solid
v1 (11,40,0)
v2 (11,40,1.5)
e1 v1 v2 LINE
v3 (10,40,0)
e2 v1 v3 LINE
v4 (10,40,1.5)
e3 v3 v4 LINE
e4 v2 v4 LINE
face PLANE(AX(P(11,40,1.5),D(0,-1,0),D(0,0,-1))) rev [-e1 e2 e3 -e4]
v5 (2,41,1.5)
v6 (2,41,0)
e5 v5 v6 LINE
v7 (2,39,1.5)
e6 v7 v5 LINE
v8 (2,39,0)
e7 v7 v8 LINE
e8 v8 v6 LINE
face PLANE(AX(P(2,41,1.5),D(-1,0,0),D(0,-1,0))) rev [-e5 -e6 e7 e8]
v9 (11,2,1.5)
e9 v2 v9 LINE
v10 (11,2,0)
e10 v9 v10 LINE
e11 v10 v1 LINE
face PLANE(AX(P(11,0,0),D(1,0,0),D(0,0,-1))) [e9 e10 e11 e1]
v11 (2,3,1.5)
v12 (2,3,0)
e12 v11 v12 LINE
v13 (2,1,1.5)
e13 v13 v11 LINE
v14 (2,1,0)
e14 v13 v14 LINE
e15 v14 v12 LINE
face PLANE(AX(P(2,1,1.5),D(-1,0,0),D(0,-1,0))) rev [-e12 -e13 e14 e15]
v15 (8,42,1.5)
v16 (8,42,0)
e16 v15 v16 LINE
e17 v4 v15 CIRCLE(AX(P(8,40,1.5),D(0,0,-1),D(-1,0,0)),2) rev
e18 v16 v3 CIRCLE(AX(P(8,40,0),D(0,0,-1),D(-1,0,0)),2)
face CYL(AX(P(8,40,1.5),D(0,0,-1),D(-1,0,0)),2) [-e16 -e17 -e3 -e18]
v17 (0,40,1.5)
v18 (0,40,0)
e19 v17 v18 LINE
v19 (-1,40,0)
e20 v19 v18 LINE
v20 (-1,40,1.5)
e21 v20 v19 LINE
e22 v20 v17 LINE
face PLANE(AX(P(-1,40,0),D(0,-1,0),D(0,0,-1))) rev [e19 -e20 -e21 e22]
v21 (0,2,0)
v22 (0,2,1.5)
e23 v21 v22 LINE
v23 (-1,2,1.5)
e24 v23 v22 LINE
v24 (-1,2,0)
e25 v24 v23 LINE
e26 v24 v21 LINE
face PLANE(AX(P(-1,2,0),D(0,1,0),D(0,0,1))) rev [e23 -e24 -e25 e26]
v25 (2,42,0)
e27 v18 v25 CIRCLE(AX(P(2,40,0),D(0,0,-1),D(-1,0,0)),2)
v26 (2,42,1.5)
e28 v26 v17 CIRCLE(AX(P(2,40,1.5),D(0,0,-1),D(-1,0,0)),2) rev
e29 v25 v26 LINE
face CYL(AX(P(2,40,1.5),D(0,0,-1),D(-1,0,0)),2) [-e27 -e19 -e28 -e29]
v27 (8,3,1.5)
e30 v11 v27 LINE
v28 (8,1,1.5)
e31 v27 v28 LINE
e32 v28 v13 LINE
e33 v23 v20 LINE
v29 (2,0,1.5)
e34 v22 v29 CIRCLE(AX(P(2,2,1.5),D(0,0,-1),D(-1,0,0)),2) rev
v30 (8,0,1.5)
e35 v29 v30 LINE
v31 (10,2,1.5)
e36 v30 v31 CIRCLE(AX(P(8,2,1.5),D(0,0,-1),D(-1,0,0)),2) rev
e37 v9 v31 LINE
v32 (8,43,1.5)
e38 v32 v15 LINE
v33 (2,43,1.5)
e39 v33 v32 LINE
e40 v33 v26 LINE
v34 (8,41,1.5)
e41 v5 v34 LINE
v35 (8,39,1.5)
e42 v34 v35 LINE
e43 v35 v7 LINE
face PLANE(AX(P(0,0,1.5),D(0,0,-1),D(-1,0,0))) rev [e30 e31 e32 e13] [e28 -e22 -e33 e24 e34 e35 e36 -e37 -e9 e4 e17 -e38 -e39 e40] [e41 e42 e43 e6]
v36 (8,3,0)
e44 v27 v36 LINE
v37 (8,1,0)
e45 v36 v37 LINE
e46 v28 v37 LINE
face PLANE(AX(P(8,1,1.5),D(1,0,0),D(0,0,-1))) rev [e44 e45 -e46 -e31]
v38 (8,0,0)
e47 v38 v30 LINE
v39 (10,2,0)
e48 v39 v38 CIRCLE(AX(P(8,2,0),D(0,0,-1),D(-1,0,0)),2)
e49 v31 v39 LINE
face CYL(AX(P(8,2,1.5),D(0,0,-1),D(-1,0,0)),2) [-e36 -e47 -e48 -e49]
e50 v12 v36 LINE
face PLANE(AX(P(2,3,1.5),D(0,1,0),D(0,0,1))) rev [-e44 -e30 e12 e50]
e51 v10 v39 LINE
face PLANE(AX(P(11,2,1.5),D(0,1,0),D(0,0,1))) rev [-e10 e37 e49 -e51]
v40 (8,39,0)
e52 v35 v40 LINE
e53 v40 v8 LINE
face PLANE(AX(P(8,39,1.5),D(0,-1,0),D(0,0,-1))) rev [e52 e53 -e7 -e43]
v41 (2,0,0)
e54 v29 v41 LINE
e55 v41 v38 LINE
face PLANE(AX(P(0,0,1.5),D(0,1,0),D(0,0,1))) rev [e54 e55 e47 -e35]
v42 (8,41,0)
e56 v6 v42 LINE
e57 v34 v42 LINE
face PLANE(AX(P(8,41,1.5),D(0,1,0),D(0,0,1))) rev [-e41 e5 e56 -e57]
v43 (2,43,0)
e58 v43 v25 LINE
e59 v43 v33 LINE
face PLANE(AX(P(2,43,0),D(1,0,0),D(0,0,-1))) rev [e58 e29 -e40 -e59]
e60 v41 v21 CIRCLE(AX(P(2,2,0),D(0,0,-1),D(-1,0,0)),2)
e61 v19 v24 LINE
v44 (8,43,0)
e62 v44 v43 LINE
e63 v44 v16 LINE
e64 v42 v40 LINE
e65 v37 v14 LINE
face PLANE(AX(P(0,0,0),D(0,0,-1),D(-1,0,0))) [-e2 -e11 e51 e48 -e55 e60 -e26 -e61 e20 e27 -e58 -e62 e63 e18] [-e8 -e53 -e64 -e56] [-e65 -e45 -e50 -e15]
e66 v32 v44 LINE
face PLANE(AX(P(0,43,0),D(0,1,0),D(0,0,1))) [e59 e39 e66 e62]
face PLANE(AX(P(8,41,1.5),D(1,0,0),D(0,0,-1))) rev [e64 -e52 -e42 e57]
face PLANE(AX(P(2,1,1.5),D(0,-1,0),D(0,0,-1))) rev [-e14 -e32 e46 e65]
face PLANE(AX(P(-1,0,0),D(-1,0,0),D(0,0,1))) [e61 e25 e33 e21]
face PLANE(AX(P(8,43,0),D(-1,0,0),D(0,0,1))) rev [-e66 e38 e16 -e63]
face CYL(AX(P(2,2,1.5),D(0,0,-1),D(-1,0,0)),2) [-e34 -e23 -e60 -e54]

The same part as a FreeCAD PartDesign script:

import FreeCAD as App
import Part
import Sketcher

V = App.Vector


def edges_at(feature, points):
    """Names of the edges that pass closest to the given points."""
    edges = feature.Shape.Edges
    near = lambda p: min(range(len(edges)), key=lambda i: edges[i].distToShape(Part.Vertex(*p))[0])
    return sorted({f"Edge{near(p) + 1}" for p in points})


def add_polygon(sketch, points):
    """Adds a closed chain of lines whose ends are joined by coincident constraints."""
    first, n = sketch.GeometryCount, len(points)
    for a, b in zip(points, points[1:] + points[:1]):
        sketch.addGeometry(Part.LineSegment(App.Vector(*a, 0), App.Vector(*b, 0)), False)
    for i in range(n):
        sketch.addConstraint(Sketcher.Constraint("Coincident", first + i, 2, first + (i + 1) % n, 1))

doc = App.newDocument("Part")
body = doc.addObject("PartDesign::Body", "Body")

# Sketch on XY plane
sketch1 = body.newObject("Sketcher::SketchObject", "Sketch")
sketch1.AttachmentSupport = (doc.getObject("XY_Plane"), [""])
sketch1.MapMode = "FlatFace"
add_polygon(sketch1, [(0, 42), (0, 0), (10, 0), (10, 42)])  # lines 0-3
sketch1.addConstraint(Sketcher.Constraint("Vertical", 0))
sketch1.addConstraint(Sketcher.Constraint("Horizontal", 1))
sketch1.addConstraint(Sketcher.Constraint("Vertical", 2))
sketch1.addConstraint(Sketcher.Constraint("Horizontal", 3))
sketch1.addConstraint(Sketcher.Constraint("Coincident", 0, 2, -1, 1))
sketch1.addConstraint(Sketcher.Constraint("DistanceX", 1, 1, 1, 2, 10.0))
sketch1.addConstraint(Sketcher.Constraint("DistanceY", 0, 2, 0, 1, 42.0))
pad1 = body.newObject("PartDesign::Pad", "Pad")
pad1.Profile = sketch1
pad1.Length = 1.5
doc.recompute()

fillet = body.newObject("PartDesign::Fillet", "Fillet")
fillet.Base = (pad1, edges_at(pad1, [
    (0, 42, 0.75),
    (10, 42, 0.75),
    (10, 0, 0.75),
    (0, 0, 0.75),
]))
fillet.Radius = 2

# Sketch on YZ plane
sketch2 = body.newObject("Sketcher::SketchObject", "Sketch001")
sketch2.AttachmentSupport = (doc.getObject("YZ_Plane"), [""])
sketch2.MapMode = "FlatFace"
sketch2.AttachmentOffset = App.Placement(V(0, 0, 10), App.Rotation())
add_polygon(sketch2, [(40, 1.5), (2, 1.5), (2, 0), (40, 0)])  # lines 0-3
sketch2.addConstraint(Sketcher.Constraint("Horizontal", 0))
sketch2.addConstraint(Sketcher.Constraint("Vertical", 1))
sketch2.addConstraint(Sketcher.Constraint("Horizontal", 2))
sketch2.addConstraint(Sketcher.Constraint("Vertical", 3))
sketch2.addConstraint(Sketcher.Constraint("PointOnObject", 1, 2, -1))
sketch2.addConstraint(Sketcher.Constraint("DistanceX", 0, 2, 0, 1, 38.0))
sketch2.addConstraint(Sketcher.Constraint("DistanceY", 1, 2, 1, 1, 1.5))
sketch2.addConstraint(Sketcher.Constraint("DistanceX", -1, 1, 0, 2, 2.0))
pad2 = body.newObject("PartDesign::Pad", "Pad001")
pad2.Profile = sketch2
pad2.Length = 1

# Sketch on YZ plane
sketch3 = body.newObject("Sketcher::SketchObject", "Sketch002")
sketch3.AttachmentSupport = (doc.getObject("YZ_Plane"), [""])
sketch3.MapMode = "FlatFace"
add_polygon(sketch3, [(40, 0), (2, 0), (2, 1.5), (40, 1.5)])  # lines 0-3
sketch3.addConstraint(Sketcher.Constraint("Horizontal", 0))
sketch3.addConstraint(Sketcher.Constraint("Vertical", 1))
sketch3.addConstraint(Sketcher.Constraint("Horizontal", 2))
sketch3.addConstraint(Sketcher.Constraint("Vertical", 3))
sketch3.addConstraint(Sketcher.Constraint("PointOnObject", 0, 2, -1))
sketch3.addConstraint(Sketcher.Constraint("DistanceX", 0, 2, 0, 1, 38.0))
sketch3.addConstraint(Sketcher.Constraint("DistanceY", 1, 1, 1, 2, 1.5))
sketch3.addConstraint(Sketcher.Constraint("DistanceX", -1, 1, 0, 2, 2.0))
pad3 = body.newObject("PartDesign::Pad", "Pad002")
pad3.Profile = sketch3
pad3.Length = 1
pad3.Reversed = True

# Sketch on XZ plane
sketch4 = body.newObject("Sketcher::SketchObject", "Sketch003")
sketch4.AttachmentSupport = (doc.getObject("XZ_Plane"), [""])
sketch4.MapMode = "FlatFace"
sketch4.AttachmentOffset = App.Placement(V(0, 0, -42), App.Rotation())
add_polygon(sketch4, [(2, 0), (2, 1.5), (8, 1.5), (8, 0)])  # lines 0-3
sketch4.addConstraint(Sketcher.Constraint("Vertical", 0))
sketch4.addConstraint(Sketcher.Constraint("Horizontal", 1))
sketch4.addConstraint(Sketcher.Constraint("Vertical", 2))
sketch4.addConstraint(Sketcher.Constraint("Horizontal", 3))
sketch4.addConstraint(Sketcher.Constraint("PointOnObject", 2, 2, -1))
sketch4.addConstraint(Sketcher.Constraint("DistanceX", 1, 1, 1, 2, 6.0))
sketch4.addConstraint(Sketcher.Constraint("DistanceY", 0, 1, 0, 2, 1.5))
sketch4.addConstraint(Sketcher.Constraint("DistanceX", -1, 1, 0, 2, 2.0))
pad4 = body.newObject("PartDesign::Pad", "Pad003")
pad4.Profile = sketch4
pad4.Length = 1
pad4.Reversed = True

# Sketch on XY plane
sketch5 = body.newObject("Sketcher::SketchObject", "Sketch004")
sketch5.AttachmentSupport = (doc.getObject("XY_Plane"), [""])
sketch5.MapMode = "FlatFace"
add_polygon(sketch5, [(8, 41), (8, 39), (2, 39), (2, 41)])  # lines 0-3
add_polygon(sketch5, [(8, 3), (8, 1), (2, 1), (2, 3)])  # lines 4-7
sketch5.addConstraint(Sketcher.Constraint("Vertical", 0))
sketch5.addConstraint(Sketcher.Constraint("Horizontal", 1))
sketch5.addConstraint(Sketcher.Constraint("Vertical", 2))
sketch5.addConstraint(Sketcher.Constraint("Horizontal", 3))
sketch5.addConstraint(Sketcher.Constraint("Vertical", 4))
sketch5.addConstraint(Sketcher.Constraint("Horizontal", 5))
sketch5.addConstraint(Sketcher.Constraint("Vertical", 6))
sketch5.addConstraint(Sketcher.Constraint("Horizontal", 7))
sketch5.addConstraint(Sketcher.Constraint("Vertical", 3, 2, 4, 2))
sketch5.addConstraint(Sketcher.Constraint("Vertical", 2, 2, 5, 2))
sketch5.addConstraint(Sketcher.Constraint("Equal", 2, 4))
sketch5.addConstraint(Sketcher.Constraint("DistanceX", 1, 2, 1, 1, 6.0))
sketch5.addConstraint(Sketcher.Constraint("DistanceY", 0, 2, 0, 1, 2.0))
sketch5.addConstraint(Sketcher.Constraint("DistanceX", -1, 1, 0, 2, 8.0))
sketch5.addConstraint(Sketcher.Constraint("DistanceY", -1, 1, 0, 2, 39.0))
sketch5.addConstraint(Sketcher.Constraint("DistanceY", -1, 1, 4, 2, 1.0))
pocket1 = body.newObject("PartDesign::Pocket", "Pocket")
pocket1.Profile = sketch5
pocket1.Type = "ThroughAll"
pocket1.Reversed = True

doc.recompute()
